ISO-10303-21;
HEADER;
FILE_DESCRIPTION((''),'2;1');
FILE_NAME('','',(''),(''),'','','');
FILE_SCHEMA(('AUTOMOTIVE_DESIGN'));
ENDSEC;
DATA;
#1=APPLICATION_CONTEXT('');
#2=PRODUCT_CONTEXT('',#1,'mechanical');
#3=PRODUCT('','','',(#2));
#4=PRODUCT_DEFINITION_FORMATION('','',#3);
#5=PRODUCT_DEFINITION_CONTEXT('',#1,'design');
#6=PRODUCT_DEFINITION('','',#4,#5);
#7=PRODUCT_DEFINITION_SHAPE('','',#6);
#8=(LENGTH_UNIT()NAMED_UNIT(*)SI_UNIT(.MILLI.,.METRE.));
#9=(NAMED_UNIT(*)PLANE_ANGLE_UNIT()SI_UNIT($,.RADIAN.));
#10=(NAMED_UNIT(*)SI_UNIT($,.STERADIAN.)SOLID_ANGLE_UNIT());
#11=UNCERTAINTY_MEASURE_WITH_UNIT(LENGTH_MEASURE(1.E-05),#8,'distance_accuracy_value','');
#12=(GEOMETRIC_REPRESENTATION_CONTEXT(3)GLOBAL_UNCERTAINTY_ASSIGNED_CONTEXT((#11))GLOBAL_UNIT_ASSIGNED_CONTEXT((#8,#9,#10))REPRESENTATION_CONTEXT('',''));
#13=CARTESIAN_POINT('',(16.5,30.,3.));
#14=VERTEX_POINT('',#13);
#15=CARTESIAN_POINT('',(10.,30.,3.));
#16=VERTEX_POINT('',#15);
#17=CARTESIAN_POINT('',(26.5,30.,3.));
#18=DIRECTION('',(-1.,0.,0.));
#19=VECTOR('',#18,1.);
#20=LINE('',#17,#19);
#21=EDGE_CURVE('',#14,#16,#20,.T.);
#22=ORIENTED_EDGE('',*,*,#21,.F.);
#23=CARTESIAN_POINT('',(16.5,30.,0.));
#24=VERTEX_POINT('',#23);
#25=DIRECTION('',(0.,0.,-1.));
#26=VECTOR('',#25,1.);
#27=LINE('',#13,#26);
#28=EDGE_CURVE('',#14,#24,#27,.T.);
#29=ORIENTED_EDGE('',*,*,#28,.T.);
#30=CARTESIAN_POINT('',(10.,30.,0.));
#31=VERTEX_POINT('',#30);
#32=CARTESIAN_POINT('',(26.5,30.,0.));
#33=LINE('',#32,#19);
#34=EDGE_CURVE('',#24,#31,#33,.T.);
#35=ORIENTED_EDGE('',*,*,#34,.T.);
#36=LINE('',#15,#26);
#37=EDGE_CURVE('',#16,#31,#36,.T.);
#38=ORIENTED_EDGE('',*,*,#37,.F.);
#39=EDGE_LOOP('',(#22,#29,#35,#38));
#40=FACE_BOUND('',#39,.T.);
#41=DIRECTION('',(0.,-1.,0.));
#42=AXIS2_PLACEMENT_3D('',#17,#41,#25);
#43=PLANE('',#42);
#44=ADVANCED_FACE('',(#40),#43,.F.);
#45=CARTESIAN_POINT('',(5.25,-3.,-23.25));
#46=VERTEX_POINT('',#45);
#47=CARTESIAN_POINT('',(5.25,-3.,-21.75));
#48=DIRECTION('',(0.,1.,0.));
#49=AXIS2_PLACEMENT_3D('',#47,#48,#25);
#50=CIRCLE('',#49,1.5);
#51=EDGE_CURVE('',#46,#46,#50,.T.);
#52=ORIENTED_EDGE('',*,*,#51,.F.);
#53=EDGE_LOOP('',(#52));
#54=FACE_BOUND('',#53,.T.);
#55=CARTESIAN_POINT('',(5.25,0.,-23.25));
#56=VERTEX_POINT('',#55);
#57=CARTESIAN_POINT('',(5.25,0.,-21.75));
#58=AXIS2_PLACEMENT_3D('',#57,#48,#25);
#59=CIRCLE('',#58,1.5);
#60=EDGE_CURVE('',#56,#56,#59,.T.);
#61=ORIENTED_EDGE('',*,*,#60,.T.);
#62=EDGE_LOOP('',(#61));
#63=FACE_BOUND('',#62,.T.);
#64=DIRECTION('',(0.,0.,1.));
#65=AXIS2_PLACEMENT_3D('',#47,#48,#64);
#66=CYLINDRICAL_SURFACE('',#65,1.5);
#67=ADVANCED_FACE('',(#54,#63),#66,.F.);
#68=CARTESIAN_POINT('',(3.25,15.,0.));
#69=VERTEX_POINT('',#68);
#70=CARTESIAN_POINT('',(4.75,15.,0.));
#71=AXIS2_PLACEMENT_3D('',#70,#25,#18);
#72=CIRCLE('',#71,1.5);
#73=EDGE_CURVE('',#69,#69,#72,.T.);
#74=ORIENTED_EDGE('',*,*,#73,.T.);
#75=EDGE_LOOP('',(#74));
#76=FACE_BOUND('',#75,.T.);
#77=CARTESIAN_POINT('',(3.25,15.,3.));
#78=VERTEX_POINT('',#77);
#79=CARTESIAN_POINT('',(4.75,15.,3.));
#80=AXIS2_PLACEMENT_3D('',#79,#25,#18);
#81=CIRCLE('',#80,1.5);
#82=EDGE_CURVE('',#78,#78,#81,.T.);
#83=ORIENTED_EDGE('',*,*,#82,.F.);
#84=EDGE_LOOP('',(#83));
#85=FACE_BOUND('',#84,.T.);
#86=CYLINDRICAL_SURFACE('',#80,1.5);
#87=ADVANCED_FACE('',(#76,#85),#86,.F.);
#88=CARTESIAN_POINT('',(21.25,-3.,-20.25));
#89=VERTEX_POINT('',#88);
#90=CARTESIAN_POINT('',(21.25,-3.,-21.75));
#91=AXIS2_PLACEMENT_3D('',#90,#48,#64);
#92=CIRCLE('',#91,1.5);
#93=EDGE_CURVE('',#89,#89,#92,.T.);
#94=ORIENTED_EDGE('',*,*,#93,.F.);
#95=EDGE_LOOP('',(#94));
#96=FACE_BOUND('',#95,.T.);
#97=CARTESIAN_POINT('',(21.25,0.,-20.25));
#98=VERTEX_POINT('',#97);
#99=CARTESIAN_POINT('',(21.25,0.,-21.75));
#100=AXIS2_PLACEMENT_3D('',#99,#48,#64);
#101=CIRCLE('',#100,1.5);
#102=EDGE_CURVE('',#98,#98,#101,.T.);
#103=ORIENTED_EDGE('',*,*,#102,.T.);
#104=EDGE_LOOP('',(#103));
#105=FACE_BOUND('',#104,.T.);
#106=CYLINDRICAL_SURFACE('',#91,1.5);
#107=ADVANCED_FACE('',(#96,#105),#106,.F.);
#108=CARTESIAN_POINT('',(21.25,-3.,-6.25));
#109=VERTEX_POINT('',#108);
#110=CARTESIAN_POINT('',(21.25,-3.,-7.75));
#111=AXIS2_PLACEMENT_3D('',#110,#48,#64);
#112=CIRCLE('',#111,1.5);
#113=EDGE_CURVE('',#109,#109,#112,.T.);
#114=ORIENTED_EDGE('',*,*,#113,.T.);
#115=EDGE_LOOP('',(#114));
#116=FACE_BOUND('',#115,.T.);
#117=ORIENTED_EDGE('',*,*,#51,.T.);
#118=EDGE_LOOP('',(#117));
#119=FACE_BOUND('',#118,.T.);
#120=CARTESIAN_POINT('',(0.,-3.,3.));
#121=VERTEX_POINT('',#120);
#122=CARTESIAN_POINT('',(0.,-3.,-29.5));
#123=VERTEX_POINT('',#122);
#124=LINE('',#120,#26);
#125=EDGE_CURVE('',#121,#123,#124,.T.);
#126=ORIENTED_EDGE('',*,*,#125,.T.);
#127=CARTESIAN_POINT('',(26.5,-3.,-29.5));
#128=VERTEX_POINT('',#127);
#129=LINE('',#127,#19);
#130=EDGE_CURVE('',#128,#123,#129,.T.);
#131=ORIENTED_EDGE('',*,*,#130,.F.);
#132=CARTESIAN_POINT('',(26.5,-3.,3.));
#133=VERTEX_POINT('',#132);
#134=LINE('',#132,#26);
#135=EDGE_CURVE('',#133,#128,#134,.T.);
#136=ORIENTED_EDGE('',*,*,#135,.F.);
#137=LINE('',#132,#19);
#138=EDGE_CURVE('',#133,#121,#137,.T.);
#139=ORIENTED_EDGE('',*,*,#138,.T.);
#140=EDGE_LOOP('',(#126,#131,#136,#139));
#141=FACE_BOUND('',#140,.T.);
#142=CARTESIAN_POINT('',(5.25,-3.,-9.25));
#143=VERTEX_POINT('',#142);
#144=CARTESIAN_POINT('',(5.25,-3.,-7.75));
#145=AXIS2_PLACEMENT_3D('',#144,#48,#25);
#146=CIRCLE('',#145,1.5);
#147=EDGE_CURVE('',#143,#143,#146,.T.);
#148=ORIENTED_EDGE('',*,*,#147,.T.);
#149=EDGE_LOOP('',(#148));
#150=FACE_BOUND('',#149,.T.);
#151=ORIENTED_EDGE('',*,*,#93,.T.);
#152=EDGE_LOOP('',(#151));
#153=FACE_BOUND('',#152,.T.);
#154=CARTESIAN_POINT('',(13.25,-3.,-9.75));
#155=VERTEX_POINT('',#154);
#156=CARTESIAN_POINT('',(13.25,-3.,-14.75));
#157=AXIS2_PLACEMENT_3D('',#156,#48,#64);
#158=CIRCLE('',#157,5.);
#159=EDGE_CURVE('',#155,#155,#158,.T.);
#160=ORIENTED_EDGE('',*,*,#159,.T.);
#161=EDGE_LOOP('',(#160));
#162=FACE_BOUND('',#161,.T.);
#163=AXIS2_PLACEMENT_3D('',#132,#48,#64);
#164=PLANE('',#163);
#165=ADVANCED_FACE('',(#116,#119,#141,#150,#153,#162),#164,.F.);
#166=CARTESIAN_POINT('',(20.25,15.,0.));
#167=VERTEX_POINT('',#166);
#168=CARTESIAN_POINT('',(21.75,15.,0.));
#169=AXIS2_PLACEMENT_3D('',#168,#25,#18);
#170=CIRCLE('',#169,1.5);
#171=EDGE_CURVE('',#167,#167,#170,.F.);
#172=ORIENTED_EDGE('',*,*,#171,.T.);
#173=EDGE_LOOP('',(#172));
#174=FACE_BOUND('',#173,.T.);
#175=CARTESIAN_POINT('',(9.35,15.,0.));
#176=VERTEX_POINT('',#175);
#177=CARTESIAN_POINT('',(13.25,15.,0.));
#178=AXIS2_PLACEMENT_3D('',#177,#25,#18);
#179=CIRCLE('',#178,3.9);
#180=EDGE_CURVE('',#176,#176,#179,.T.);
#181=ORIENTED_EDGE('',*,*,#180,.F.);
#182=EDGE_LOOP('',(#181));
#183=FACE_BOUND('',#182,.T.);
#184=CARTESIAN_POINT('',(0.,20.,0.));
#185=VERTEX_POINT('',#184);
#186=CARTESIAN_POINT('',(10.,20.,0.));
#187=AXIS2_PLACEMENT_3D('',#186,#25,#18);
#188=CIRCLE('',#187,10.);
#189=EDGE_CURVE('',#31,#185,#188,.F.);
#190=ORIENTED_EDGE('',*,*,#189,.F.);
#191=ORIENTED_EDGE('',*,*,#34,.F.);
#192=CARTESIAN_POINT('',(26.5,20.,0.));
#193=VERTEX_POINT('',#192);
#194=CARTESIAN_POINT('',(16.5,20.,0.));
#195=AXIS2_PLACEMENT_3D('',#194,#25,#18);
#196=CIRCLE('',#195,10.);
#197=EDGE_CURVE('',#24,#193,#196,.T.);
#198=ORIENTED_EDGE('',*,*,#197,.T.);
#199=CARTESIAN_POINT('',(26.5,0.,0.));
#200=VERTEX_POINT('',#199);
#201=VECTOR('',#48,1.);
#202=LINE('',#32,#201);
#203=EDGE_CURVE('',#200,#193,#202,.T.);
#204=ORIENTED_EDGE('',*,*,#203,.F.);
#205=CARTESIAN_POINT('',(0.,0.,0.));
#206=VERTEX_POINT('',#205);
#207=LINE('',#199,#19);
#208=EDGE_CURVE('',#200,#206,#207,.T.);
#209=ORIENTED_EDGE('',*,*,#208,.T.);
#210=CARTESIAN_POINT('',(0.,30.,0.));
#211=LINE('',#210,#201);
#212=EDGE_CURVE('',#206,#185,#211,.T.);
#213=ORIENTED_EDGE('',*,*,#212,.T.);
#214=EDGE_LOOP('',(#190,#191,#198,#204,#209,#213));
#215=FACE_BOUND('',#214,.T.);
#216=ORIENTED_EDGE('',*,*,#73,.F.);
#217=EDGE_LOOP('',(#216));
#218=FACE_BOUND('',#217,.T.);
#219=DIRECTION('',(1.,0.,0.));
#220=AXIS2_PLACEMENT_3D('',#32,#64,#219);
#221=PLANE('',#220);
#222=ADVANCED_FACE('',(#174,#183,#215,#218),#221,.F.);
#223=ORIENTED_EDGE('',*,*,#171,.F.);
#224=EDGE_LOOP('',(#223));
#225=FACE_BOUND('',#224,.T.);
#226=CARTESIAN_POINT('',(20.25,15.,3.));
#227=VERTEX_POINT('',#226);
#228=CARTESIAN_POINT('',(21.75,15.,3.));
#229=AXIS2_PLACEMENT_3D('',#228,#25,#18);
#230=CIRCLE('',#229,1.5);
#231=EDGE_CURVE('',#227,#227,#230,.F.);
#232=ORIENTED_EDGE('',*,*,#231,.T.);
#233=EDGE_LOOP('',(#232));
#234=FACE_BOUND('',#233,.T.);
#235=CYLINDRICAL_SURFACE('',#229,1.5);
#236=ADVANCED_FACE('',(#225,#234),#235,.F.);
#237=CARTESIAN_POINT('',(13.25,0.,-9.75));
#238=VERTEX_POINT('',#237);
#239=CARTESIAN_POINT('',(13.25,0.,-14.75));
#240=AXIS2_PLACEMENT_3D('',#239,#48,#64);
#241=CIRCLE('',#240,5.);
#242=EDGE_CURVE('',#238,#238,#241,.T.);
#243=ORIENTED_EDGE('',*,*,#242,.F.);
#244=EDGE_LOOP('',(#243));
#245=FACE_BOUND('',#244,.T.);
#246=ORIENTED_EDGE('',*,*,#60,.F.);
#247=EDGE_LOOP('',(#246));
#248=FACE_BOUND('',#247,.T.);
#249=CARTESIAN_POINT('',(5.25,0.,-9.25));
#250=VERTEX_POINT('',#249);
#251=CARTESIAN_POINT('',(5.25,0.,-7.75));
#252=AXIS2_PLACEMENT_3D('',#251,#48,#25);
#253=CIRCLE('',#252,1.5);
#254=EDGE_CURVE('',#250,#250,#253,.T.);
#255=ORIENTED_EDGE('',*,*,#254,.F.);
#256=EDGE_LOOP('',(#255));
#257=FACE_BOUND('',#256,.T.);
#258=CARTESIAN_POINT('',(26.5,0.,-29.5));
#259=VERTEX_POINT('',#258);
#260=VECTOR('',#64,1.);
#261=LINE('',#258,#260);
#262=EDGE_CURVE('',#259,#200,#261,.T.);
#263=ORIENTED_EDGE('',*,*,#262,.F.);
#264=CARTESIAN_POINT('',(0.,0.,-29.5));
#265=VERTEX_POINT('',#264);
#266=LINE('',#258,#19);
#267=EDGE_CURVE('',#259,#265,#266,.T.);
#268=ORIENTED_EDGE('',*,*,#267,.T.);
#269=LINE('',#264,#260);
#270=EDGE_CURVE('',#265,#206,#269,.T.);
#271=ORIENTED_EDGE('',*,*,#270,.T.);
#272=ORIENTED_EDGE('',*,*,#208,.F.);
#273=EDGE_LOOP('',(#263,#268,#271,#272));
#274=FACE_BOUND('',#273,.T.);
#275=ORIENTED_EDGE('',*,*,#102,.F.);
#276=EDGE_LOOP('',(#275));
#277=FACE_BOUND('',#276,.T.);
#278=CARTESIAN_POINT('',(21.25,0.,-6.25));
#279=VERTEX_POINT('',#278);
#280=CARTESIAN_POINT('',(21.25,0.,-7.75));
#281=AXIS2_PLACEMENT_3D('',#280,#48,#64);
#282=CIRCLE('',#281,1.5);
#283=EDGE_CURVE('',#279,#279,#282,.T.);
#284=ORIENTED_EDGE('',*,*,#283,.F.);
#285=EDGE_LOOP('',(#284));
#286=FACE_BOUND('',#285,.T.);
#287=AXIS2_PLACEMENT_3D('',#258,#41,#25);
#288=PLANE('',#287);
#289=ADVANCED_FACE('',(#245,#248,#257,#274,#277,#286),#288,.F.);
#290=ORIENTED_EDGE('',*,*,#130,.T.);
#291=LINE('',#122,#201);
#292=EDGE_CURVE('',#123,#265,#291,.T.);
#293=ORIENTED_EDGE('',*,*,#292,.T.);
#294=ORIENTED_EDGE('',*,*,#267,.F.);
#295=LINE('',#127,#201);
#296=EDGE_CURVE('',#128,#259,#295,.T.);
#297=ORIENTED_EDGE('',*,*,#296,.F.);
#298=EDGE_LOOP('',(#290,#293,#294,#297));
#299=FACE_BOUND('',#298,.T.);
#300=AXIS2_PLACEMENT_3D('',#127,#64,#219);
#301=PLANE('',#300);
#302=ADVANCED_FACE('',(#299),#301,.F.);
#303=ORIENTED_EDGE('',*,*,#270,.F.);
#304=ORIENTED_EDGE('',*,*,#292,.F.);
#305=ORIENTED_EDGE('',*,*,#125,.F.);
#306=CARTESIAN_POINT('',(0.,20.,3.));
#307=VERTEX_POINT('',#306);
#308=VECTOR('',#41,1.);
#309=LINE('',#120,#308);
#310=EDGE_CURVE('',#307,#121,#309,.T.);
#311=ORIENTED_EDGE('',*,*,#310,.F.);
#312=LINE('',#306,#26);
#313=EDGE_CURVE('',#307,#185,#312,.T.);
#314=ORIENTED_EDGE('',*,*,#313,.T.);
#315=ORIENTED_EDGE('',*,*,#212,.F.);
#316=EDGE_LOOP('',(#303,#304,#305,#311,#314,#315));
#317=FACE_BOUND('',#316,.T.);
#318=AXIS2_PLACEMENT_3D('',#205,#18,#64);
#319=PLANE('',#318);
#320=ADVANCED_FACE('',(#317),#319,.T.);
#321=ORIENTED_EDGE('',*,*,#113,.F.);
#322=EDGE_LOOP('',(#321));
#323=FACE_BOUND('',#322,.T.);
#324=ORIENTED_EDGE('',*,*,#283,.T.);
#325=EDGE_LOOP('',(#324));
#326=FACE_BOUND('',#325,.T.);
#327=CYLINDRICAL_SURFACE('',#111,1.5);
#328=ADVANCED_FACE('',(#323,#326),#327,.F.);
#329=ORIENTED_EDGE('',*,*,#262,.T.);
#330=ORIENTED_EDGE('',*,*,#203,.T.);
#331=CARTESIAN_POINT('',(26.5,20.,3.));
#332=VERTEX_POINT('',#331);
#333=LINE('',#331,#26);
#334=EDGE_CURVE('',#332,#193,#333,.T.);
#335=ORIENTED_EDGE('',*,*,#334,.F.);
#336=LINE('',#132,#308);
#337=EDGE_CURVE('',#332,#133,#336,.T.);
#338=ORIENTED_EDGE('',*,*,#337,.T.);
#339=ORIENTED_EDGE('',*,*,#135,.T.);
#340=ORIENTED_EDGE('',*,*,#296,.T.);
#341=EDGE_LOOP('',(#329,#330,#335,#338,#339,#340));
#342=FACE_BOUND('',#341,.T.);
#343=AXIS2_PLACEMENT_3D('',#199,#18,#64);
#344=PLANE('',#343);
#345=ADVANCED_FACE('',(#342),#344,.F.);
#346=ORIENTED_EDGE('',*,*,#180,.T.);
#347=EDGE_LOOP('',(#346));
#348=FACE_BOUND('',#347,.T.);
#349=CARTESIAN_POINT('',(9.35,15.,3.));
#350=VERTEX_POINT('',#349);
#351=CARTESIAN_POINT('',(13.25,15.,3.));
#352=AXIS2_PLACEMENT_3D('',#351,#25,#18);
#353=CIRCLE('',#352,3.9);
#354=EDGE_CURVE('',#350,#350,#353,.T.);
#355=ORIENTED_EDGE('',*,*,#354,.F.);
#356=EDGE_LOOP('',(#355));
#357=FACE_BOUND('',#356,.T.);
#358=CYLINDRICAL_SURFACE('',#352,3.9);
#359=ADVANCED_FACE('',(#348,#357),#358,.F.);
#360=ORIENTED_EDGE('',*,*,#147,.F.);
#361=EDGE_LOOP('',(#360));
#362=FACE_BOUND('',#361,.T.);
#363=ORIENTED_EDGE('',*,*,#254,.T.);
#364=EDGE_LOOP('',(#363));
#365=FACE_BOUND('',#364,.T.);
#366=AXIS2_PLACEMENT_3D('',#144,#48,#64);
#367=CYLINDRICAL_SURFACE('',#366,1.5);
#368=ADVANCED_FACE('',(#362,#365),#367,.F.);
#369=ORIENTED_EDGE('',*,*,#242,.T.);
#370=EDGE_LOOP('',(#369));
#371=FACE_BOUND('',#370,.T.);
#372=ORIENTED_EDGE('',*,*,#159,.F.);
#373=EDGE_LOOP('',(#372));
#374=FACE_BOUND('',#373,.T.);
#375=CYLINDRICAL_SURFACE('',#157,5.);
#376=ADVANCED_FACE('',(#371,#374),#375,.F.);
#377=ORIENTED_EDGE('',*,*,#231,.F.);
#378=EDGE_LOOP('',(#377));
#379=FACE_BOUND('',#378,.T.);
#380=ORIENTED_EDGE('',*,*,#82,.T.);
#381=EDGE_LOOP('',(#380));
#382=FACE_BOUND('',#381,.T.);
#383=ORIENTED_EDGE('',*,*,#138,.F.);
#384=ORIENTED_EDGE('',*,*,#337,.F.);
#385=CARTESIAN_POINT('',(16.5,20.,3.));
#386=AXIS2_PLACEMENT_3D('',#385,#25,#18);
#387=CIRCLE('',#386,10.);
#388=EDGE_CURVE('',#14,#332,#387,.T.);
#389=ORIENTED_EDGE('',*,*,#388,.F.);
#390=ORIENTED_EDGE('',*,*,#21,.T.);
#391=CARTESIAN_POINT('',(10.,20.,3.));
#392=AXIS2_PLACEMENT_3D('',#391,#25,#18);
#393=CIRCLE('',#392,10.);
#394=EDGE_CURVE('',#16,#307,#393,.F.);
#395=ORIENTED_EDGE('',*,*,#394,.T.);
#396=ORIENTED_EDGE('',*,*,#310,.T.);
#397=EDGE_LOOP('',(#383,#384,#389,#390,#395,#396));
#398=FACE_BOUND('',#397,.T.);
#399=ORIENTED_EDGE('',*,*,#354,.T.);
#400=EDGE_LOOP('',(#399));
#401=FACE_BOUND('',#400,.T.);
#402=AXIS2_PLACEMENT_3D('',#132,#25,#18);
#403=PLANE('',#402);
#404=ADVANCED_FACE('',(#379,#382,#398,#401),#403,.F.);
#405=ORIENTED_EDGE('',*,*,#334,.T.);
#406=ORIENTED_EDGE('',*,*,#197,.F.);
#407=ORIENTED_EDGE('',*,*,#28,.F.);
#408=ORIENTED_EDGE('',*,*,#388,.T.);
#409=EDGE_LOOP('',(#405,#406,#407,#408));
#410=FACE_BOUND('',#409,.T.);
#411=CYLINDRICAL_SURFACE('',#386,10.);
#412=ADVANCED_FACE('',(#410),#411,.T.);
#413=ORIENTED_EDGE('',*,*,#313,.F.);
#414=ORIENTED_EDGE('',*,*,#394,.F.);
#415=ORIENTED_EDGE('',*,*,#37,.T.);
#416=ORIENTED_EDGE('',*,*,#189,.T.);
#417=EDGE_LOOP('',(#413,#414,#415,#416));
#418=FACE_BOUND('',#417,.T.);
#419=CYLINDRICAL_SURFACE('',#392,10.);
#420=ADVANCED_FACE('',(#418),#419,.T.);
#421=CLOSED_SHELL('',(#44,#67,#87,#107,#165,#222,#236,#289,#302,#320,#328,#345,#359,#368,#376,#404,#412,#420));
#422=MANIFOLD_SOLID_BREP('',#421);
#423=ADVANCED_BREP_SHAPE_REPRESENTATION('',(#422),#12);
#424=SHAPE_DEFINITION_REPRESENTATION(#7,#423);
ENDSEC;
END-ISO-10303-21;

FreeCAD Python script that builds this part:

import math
import FreeCAD as App
import Part
import Sketcher
from FreeCAD import Vector

doc = App.newDocument("Part")
body = doc.addObject("PartDesign::Body", "Body")

# Sketch on YZ plane
sketch1 = body.newObject("Sketcher::SketchObject", "Sketch")
sketch1.AttachmentSupport = (doc.getObject("YZ_Plane"), [""])
sketch1.MapMode = "FlatFace"
sketch1.addGeometry([
    Part.LineSegment(Vector(-3, 3, 0), Vector(-3, -29.5, 0)),  # 0
    Part.LineSegment(Vector(-3, -29.5, 0), Vector(0, -29.5, 0)),  # 1
    Part.LineSegment(Vector(0, -29.5, 0), Vector(0, 0, 0)),  # 2
    Part.LineSegment(Vector(0, 0, 0), Vector(30, 0, 0)),  # 3
    Part.LineSegment(Vector(30, 0, 0), Vector(30, 3, 0)),  # 4
    Part.LineSegment(Vector(30, 3, 0), Vector(-3, 3, 0)),  # 5
], False)
sketch1.addConstraint([
    Sketcher.Constraint("Coincident", 0, 2, 1, 1),
    Sketcher.Constraint("Coincident", 1, 2, 2, 1),
    Sketcher.Constraint("Coincident", 2, 2, 3, 1),
    Sketcher.Constraint("Coincident", 3, 2, 4, 1),
    Sketcher.Constraint("Coincident", 4, 2, 5, 1),
    Sketcher.Constraint("Coincident", 5, 2, 0, 1),
    Sketcher.Constraint("Vertical", 0),
    Sketcher.Constraint("Horizontal", 1),
    Sketcher.Constraint("Vertical", 2),
    Sketcher.Constraint("Horizontal", 3),
    Sketcher.Constraint("Vertical", 4),
    Sketcher.Constraint("Horizontal", 5),
    Sketcher.Constraint("Coincident", 2, 2, -1, 1),
    Sketcher.Constraint("Equal", 1, 4),
    Sketcher.Constraint("DistanceX", 1, 1, 1, 2, 3.0),
    Sketcher.Constraint("DistanceX", 3, 1, 3, 2, 30.0),
    Sketcher.Constraint("DistanceY", 0, 2, 0, 1, 32.5),
])
pad1 = body.newObject("PartDesign::Pad", "Pad")
pad1.Profile = sketch1
pad1.Length = 26.5

# Sketch on XY plane
sketch2 = body.newObject("Sketcher::SketchObject", "Sketch001")
sketch2.AttachmentSupport = (doc.getObject("XY_Plane"), [""])
sketch2.MapMode = "FlatFace"
sketch2.addGeometry([
    Part.Circle(Vector(13.25, 15, 0), Vector(0, 0, 1), 3.9),  # 0
    Part.Circle(Vector(4.75, 15, 0), Vector(0, 0, 1), 1.5),  # 1
    Part.Circle(Vector(21.75, 15, 0), Vector(0, 0, 1), 1.5),  # 2
    Part.ArcOfCircle(Part.Circle(Vector(16.5, 20, 0), Vector(0, 0, 1), 10), math.radians(0), math.radians(90)),  # 3
    Part.LineSegment(Vector(16.5, 30, 0), Vector(26.5, 30, 0)),  # 4
    Part.LineSegment(Vector(26.5, 30, 0), Vector(26.5, 20, 0)),  # 5
    Part.LineSegment(Vector(0, 30, 0), Vector(10, 30, 0)),  # 6
    Part.ArcOfCircle(Part.Circle(Vector(10, 20, 0), Vector(0, 0, 1), 10), math.radians(90), math.radians(180)),  # 7
    Part.LineSegment(Vector(0, 20, 0), Vector(0, 30, 0)),  # 8
], False)
sketch2.addConstraint([
    Sketcher.Constraint("Tangent", 3, 2, 4, 1),
    Sketcher.Constraint("Coincident", 4, 2, 5, 1),
    Sketcher.Constraint("Tangent", 5, 2, 3, 1),
    Sketcher.Constraint("Tangent", 6, 2, 7, 1),
    Sketcher.Constraint("Tangent", 7, 2, 8, 1),
    Sketcher.Constraint("Coincident", 8, 2, 6, 1),
    Sketcher.Constraint("Horizontal", 4),
    Sketcher.Constraint("Vertical", 5),
    Sketcher.Constraint("Horizontal", 6),
    Sketcher.Constraint("Vertical", 8),
    Sketcher.Constraint("Equal", 1, 2),
    Sketcher.Constraint("Equal", 3, 7),
    Sketcher.Constraint("PointOnObject", 7, 2, -2),
    Sketcher.Constraint("Horizontal", 0, 3, 1, 3),
    Sketcher.Constraint("Horizontal", 1, 3, 2, 3),
    Sketcher.Constraint("Horizontal", 3, 3, 7, 3),
    Sketcher.Constraint("Diameter", 1, 3.0),
    Sketcher.Constraint("Radius", 3, 10.0),
    Sketcher.Constraint("Diameter", 0, 7.8),
    Sketcher.Constraint("DistanceY", -1, 1, 0, 3, 15.0),
    Sketcher.Constraint("DistanceY", -1, 1, 3, 3, 20.0),
    Sketcher.Constraint("DistanceX", 1, 3, 2, 3, 17.0),
    Sketcher.Constraint("DistanceX", -1, 1, 3, 3, 16.5),
    Sketcher.Constraint("DistanceX", 1, 3, 0, 3, 8.5),
    Sketcher.Constraint("DistanceX", -1, 1, 0, 3, 13.25),
])
pocket1 = body.newObject("PartDesign::Pocket", "Pocket")
pocket1.Profile = sketch2
pocket1.Type = "ThroughAll"
pocket1.Reversed = True

# Sketch on XZ plane
sketch3 = body.newObject("Sketcher::SketchObject", "Sketch002")
sketch3.AttachmentSupport = (doc.getObject("XZ_Plane"), [""])
sketch3.MapMode = "FlatFace"
sketch3.addGeometry([
    Part.Circle(Vector(13.25, -14.75, 0), Vector(0, 0, 1), 5),  # 0
    Part.Circle(Vector(21.25, -21.75, 0), Vector(0, 0, 1), 1.5),  # 1
    Part.Circle(Vector(21.25, -7.75, 0), Vector(0, 0, 1), 1.5),  # 2
    Part.Circle(Vector(5.25, -21.75, 0), Vector(0, 0, 1), 1.5),  # 3
    Part.Circle(Vector(5.25, -7.75, 0), Vector(0, 0, 1), 1.5),  # 4
], False)
sketch3.addConstraint([
    Sketcher.Constraint("Equal", 1, 2),
    Sketcher.Constraint("Equal", 2, 3),
    Sketcher.Constraint("Equal", 3, 4),
    Sketcher.Constraint("Horizontal", 1, 3, 3, 3),
    Sketcher.Constraint("Horizontal", 2, 3, 4, 3),
    Sketcher.Constraint("Vertical", 1, 3, 2, 3),
    Sketcher.Constraint("Vertical", 3, 3, 4, 3),
    Sketcher.Constraint("Diameter", 0, 10.0),
    Sketcher.Constraint("Diameter", 1, 3.0),
    Sketcher.Constraint("DistanceX", 0, 3, 1, 3, 8.0),
    Sketcher.Constraint("DistanceY", 1, 3, 0, 3, 7.0),
    Sketcher.Constraint("DistanceY", 0, 3, 2, 3, 7.0),
    Sketcher.Constraint("DistanceX", 3, 3, 0, 3, 8.0),
    Sketcher.Constraint("DistanceX", -1, 1, 0, 3, 13.25),
    Sketcher.Constraint("DistanceY", 0, 3, -1, 1, 14.75),
])
pocket2 = body.newObject("PartDesign::Pocket", "Pocket001")
pocket2.Profile = sketch3
pocket2.Type = "ThroughAll"
pocket2.Reversed = True

doc.recompute()
